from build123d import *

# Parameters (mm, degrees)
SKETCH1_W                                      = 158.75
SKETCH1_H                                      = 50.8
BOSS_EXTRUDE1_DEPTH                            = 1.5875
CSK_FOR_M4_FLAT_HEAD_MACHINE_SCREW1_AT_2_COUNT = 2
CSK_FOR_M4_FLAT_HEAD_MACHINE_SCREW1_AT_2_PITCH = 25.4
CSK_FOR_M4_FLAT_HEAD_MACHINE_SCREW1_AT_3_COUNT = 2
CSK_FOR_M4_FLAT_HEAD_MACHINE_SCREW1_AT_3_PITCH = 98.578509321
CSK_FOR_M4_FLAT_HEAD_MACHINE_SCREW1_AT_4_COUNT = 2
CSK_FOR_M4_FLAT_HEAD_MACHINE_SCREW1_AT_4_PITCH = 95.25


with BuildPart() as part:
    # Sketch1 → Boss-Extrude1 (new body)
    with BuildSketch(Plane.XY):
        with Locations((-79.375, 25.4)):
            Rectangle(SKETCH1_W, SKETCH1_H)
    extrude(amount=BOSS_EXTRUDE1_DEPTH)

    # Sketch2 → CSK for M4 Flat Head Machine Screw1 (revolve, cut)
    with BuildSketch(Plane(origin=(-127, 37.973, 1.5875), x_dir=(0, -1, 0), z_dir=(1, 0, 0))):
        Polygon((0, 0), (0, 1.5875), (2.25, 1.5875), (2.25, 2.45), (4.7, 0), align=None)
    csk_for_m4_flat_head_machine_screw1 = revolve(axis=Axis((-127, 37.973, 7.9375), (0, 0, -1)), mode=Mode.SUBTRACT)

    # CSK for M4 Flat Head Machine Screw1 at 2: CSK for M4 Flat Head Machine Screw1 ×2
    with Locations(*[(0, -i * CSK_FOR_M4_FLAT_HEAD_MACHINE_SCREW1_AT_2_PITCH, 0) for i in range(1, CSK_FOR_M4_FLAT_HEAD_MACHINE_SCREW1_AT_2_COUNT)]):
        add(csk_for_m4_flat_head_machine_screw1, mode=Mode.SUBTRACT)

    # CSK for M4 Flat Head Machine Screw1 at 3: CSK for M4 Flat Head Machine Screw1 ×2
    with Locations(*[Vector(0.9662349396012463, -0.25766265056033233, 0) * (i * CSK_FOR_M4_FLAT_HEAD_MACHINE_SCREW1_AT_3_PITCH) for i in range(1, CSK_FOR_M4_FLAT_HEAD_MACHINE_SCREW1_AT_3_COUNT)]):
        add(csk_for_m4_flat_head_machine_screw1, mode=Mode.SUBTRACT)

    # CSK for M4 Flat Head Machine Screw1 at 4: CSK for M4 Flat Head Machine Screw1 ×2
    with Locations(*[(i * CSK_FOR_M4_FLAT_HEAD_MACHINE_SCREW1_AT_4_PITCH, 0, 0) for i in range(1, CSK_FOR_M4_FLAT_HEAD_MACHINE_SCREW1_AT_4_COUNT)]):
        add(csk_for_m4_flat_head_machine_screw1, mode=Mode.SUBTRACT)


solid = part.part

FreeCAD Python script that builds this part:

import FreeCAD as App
import Part
import Sketcher

V = App.Vector
Q = App.Units.Quantity

doc = App.newDocument("Part")
body = doc.addObject("PartDesign::Body", "Body")

# Sketch on XY plane
sketch1 = body.newObject("Sketcher::SketchObject", "Sketch")
sketch1.AttachmentSupport = (doc.getObject("XY_Plane"), [""])
sketch1.MapMode = "FlatFace"
sketch1.addGeometry(Part.LineSegment(V(-158.75, 50.8, 0), V(-158.75, 0, 0)), False)
sketch1.addGeometry(Part.LineSegment(V(-158.75, 0, 0), V(0, 0, 0)), False)
sketch1.addGeometry(Part.LineSegment(V(0, 0, 0), V(0, 50.8, 0)), False)
sketch1.addGeometry(Part.LineSegment(V(0, 50.8, 0), V(-158.75, 50.8, 0)), False)
sketch1.addConstraint(Sketcher.Constraint("Coincident", 0, 2, 1, 1))
sketch1.addConstraint(Sketcher.Constraint("Coincident", 1, 2, 2, 1))
sketch1.addConstraint(Sketcher.Constraint("Coincident", 2, 2, 3, 1))
sketch1.addConstraint(Sketcher.Constraint("Coincident", 3, 2, 0, 1))
sketch1.addConstraint(Sketcher.Constraint("Vertical", 0))
sketch1.addConstraint(Sketcher.Constraint("Horizontal", 1))
sketch1.addConstraint(Sketcher.Constraint("Vertical", 2))
sketch1.addConstraint(Sketcher.Constraint("Horizontal", 3))
sketch1.addConstraint(Sketcher.Constraint("Coincident", 1, 2, -1, 1))
sketch1.addConstraint(Sketcher.Constraint("DistanceY", 0, 2, 0, 1, Q("2 in")))
sketch1.addConstraint(Sketcher.Constraint("DistanceX", 1, 1, 1, 2, Q("6.25 in")))
pad1 = body.newObject("PartDesign::Pad", "Pad")
pad1.Profile = sketch1
pad1.Length = Q("0.0625 in")

# Sketch on YZ plane
sketch2 = body.newObject("Sketcher::SketchObject", "Sketch001")
sketch2.AttachmentSupport = (doc.getObject("YZ_Plane"), [""])
sketch2.MapMode = "FlatFace"
sketch2.AttachmentOffset = App.Placement(V(0, 0, -5 * 25.4), App.Rotation())
sketch2.addGeometry(Part.LineSegment(V(37.973, 0, 0), V(37.973, 1.5875, 0)), False)
sketch2.addGeometry(Part.LineSegment(V(37.973, 1.5875, 0), V(33.273, 1.5875, 0)), False)
sketch2.addGeometry(Part.LineSegment(V(33.273, 1.5875, 0), V(35.723, -0.8625, 0)), False)
sketch2.addGeometry(Part.LineSegment(V(35.723, -0.8625, 0), V(35.723, 0, 0)), False)
sketch2.addGeometry(Part.LineSegment(V(35.723, 0, 0), V(37.973, 0, 0)), False)
sketch2.addGeometry(Part.LineSegment(V(37.973, 1.5875, 0), V(37.973, -0.8625, 0)), True)  # axis
sketch2.addConstraint(Sketcher.Constraint("Coincident", 0, 2, 1, 1))
sketch2.addConstraint(Sketcher.Constraint("Coincident", 1, 2, 2, 1))
sketch2.addConstraint(Sketcher.Constraint("Coincident", 2, 2, 3, 1))
sketch2.addConstraint(Sketcher.Constraint("Coincident", 3, 2, 4, 1))
sketch2.addConstraint(Sketcher.Constraint("Coincident", 4, 2, 0, 1))
sketch2.addConstraint(Sketcher.Constraint("Vertical", 0))
sketch2.addConstraint(Sketcher.Constraint("Horizontal", 1))
sketch2.addConstraint(Sketcher.Constraint("Vertical", 3))
sketch2.addConstraint(Sketcher.Constraint("Horizontal", 4))
sketch2.addConstraint(Sketcher.Constraint("Vertical", 5))
sketch2.addConstraint(Sketcher.Constraint("Coincident", 5, 1, 0, 2))
sketch2.addConstraint(Sketcher.Constraint("PointOnObject", 3, 2, -1))
sketch2.addConstraint(Sketcher.Constraint("Horizontal", 2, 2, 5, 2))
sketch2.addConstraint(Sketcher.Constraint("Angle", 2, Q("-45 deg")))
sketch2.addConstraint(Sketcher.Constraint("DistanceY", 0, 1, 0, 2, Q("0.0625 in")))
sketch2.addConstraint(Sketcher.Constraint("DistanceX", -1, 1, 0, 2, Q("1.495 in")))
sketch2.addConstraint(Sketcher.Constraint("DistanceX", 1, 2, 1, 1, 4.7))
sketch2.addConstraint(Sketcher.Constraint("DistanceX", 4, 1, 4, 2, 2.25))
groove = body.newObject("PartDesign::Groove", "Groove")
groove.Profile = sketch2
groove.ReferenceAxis = (sketch2, ["Axis0"])
groove.Angle = 360
doc.recompute()

linearpattern = body.newObject("PartDesign::LinearPattern", "LinearPattern")
linearpattern.Originals = [groove]
linearpattern.Direction = (doc.getObject("Y_Axis"), [""])
linearpattern.Mode = "offset"
linearpattern.Offset = Q("1 in")
linearpattern.Occurrences = 2
linearpattern.Reversed = True
body.Tip = linearpattern
doc.recompute()

datumline = body.newObject("PartDesign::Line", "DatumLine")
datumline.Placement = App.Placement(V(0, 0, 0), App.Rotation(V(0, 0, 1), V(0.96623494, -0.257662651, 0)))
linearpattern2 = body.newObject("PartDesign::LinearPattern", "LinearPattern001")
linearpattern2.Originals = [groove]
linearpattern2.Direction = (datumline, [""])
linearpattern2.Mode = "offset"
linearpattern2.Offset = 98.578509
linearpattern2.Occurrences = 2
body.Tip = linearpattern2
doc.recompute()

linearpattern3 = body.newObject("PartDesign::LinearPattern", "LinearPattern002")
linearpattern3.Originals = [groove]
linearpattern3.Direction = (doc.getObject("X_Axis"), [""])
linearpattern3.Mode = "offset"
linearpattern3.Offset = Q("3.75 in")
linearpattern3.Occurrences = 2
body.Tip = linearpattern3

doc.recompute()
